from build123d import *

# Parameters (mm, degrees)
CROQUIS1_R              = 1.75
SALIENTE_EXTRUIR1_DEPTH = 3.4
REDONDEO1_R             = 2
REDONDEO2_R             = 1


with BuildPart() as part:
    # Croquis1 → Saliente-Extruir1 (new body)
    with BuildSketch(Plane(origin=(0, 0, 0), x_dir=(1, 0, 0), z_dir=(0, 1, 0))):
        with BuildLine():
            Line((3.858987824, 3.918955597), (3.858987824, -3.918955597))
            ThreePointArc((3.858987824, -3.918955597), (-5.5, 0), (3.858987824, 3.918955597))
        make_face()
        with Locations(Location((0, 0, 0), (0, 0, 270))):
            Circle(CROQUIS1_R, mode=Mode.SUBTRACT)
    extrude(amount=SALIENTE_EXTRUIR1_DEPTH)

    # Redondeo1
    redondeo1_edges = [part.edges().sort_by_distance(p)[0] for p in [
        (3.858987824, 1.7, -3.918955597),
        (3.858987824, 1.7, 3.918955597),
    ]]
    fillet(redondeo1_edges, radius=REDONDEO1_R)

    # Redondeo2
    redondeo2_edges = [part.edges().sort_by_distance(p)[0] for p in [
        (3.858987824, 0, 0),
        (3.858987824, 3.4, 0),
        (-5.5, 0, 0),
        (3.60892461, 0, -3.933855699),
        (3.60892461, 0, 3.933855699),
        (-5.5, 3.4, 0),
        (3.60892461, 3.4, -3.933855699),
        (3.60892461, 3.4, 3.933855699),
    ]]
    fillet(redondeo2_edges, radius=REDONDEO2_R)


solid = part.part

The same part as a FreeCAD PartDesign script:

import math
import FreeCAD as App
import Part
import Sketcher

V = App.Vector


def edges_at(feature, points):
    """Names of the edges that pass closest to the given points."""
    edges = feature.Shape.Edges
    near = lambda p: min(range(len(edges)), key=lambda i: edges[i].distToShape(Part.Vertex(*p))[0])
    return sorted({f"Edge{near(p) + 1}" for p in points})

doc = App.newDocument("Part")
body = doc.addObject("PartDesign::Body", "Body")

sketch1 = body.newObject("Sketcher::SketchObject", "Sketch")
sketch1.AttachmentSupport = (doc.getObject("XZ_Plane"), [""])
sketch1.MapMode = "FlatFace"
sketch1.addGeometry([
    Part.LineSegment(V(3.9, 3.9, 0), V(3.9, -3.9, 0)),
    Part.ArcOfCircle(Part.Circle(V(0, 0, 0), V(0, 0, 1), 5.5), math.radians(45), math.radians(315)),
    Part.Circle(V(0, 0, 0), V(0, 0, 1), 1.8),
], False)
sketch1.addConstraint([
    Sketcher.Constraint("Coincident", 0, 1, 1, 1),
    Sketcher.Constraint("Coincident", 1, 2, 0, 2),
    Sketcher.Constraint("Vertical", 0),
    Sketcher.Constraint("Coincident", 1, 3, -1, 1),
    Sketcher.Constraint("Coincident", 2, 3, -1, 1),
    Sketcher.Constraint("Diameter", 2, 3.5),
    Sketcher.Constraint("Radius", 1, 5.5),
    Sketcher.Constraint("DistanceY", 0, 2, 0, 1, 7.837911),
])
pad1 = body.newObject("PartDesign::Pad", "Pad")
pad1.Profile = sketch1
pad1.Length = 3.4
pad1.Reversed = True
doc.recompute()

fillet = body.newObject("PartDesign::Fillet", "Fillet")
fillet.Base = (pad1, edges_at(pad1, [(3.859, 1.7, -3.919), (3.859, 1.7, 3.919)]))
fillet.Radius = 2
doc.recompute()

fillet2 = body.newObject("PartDesign::Fillet", "Fillet001")
fillet2.Base = (fillet, edges_at(fillet, [
    (3.859, 0, 0),
    (3.859, 3.4, 0),
    (-5.5, 0, 0),
    (3.609, 0, -3.934),
    (3.609, 0, 3.934),
    (-5.5, 3.4, 0),
    (3.609, 3.4, -3.934),
    (3.609, 3.4, 3.934),
]))
fillet2.Radius = 1

doc.recompute()
